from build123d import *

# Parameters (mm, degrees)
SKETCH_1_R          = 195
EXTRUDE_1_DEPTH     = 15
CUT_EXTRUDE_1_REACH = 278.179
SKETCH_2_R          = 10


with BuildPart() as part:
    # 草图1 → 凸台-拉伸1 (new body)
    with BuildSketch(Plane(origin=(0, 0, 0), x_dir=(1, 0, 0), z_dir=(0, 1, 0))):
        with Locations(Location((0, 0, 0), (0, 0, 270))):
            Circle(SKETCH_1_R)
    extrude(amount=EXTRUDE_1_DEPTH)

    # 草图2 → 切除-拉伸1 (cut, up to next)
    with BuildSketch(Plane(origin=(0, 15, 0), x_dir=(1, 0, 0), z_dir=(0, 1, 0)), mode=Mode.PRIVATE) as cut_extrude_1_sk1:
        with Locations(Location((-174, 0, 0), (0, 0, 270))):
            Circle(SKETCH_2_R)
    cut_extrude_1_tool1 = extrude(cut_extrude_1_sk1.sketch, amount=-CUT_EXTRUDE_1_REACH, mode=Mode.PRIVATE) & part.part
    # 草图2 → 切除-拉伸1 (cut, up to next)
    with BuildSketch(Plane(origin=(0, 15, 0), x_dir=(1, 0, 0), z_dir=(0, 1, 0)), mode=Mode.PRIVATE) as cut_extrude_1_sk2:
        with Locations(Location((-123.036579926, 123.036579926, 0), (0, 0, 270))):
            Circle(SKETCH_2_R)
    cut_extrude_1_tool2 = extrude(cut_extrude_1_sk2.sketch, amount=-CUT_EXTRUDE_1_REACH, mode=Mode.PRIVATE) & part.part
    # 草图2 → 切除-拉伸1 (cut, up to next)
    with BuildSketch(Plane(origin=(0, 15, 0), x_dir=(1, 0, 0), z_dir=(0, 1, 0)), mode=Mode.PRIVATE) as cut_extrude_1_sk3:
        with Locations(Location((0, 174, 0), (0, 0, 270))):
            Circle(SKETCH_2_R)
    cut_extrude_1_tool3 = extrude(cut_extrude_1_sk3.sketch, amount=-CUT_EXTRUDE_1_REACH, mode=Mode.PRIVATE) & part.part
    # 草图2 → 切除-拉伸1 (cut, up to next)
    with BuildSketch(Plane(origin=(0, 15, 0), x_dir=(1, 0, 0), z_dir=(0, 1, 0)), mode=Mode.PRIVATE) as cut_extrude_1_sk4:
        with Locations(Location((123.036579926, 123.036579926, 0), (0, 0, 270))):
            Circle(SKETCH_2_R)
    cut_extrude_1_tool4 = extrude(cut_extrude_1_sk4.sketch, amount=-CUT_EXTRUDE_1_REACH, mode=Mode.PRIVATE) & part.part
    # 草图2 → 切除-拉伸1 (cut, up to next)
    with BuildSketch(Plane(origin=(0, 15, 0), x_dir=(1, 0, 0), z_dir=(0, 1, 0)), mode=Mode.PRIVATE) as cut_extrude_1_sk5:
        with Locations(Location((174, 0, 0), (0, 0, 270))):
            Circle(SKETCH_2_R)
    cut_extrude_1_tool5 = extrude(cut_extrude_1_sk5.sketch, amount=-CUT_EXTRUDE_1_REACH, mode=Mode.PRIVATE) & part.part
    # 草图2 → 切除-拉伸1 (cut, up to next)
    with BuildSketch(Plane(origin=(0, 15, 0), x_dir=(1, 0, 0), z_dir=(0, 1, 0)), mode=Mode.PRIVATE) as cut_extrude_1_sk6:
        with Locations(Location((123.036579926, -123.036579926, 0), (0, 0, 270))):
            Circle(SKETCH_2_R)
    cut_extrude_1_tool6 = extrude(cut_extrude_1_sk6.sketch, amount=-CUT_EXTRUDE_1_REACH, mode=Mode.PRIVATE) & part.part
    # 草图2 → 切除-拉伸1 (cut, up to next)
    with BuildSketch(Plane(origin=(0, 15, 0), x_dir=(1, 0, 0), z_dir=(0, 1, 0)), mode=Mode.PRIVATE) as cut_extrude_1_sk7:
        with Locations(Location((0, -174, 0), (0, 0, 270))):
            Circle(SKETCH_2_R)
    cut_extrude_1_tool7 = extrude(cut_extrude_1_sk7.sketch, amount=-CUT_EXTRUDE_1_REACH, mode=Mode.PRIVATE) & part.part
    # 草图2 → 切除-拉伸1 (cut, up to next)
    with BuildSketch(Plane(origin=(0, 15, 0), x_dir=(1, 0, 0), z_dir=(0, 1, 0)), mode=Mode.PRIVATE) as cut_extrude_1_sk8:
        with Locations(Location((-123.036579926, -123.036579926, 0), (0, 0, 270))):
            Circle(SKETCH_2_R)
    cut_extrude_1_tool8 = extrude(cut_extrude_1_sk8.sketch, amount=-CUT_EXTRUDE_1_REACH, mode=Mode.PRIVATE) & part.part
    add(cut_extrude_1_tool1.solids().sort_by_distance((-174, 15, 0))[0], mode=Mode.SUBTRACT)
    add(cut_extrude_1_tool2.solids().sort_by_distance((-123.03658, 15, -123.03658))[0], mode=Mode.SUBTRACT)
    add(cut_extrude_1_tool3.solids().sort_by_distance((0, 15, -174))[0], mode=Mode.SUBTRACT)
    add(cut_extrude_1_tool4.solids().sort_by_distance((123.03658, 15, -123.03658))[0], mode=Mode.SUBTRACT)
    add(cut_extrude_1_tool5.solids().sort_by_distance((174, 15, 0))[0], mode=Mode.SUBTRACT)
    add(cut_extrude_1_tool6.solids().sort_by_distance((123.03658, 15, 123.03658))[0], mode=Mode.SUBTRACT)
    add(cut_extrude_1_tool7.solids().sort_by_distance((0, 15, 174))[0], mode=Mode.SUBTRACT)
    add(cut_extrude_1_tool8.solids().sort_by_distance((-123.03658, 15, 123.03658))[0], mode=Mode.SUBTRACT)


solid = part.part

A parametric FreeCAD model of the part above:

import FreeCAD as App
import Part
import Sketcher
from FreeCAD import Vector

doc = App.newDocument("Part")
body = doc.addObject("PartDesign::Body", "Body")

sketch1 = doc.addObject("Sketcher::SketchObject", "Sketch")
body.addObject(sketch1)
sketch1.AttachmentSupport = (doc.XZ_Plane, [""])
sketch1.MapMode = "FlatFace"
sketch1.addGeometry(Part.Circle(Vector(0, 0, 0), Vector(0, 0, 1), 195), False)
sketch1.addConstraint(Sketcher.Constraint("Coincident", 0, 3, -1, 1))
sketch1.addConstraint(Sketcher.Constraint("Diameter", 0, 390.0))
pad1 = doc.addObject("PartDesign::Pad", "Pad")
body.addObject(pad1)
pad1.Profile = sketch1
pad1.Length = 15
pad1.Reversed = True

sketch2 = doc.addObject("Sketcher::SketchObject", "Sketch001")
body.addObject(sketch2)
sketch2.AttachmentSupport = (doc.XZ_Plane, [""])
sketch2.MapMode = "FlatFace"
sketch2.AttachmentOffset = App.Placement(Vector(0, 0, -15), App.Rotation())
sketch2.addGeometry(Part.Circle(Vector(-174, 0, 0), Vector(0, 0, 1), 10), False)
sketch2.addConstraint(Sketcher.Constraint("PointOnObject", 0, 3, -1))
sketch2.addConstraint(Sketcher.Constraint("Diameter", 0, 20.0))
sketch2.addConstraint(Sketcher.Constraint("DistanceX", 0, 3, -1, 1, 174.0))
pocket1 = doc.addObject("PartDesign::Pocket", "Pocket")
body.addObject(pocket1)
pocket1.Profile = sketch2
pocket1.Type = "UpToFirst"
pocket1.Reversed = True

sketch3 = doc.addObject("Sketcher::SketchObject", "Sketch002")
body.addObject(sketch3)
sketch3.AttachmentSupport = (doc.XZ_Plane, [""])
sketch3.MapMode = "FlatFace"
sketch3.AttachmentOffset = App.Placement(Vector(0, 0, -15), App.Rotation())
sketch3.addGeometry(Part.Circle(Vector(-123.03658, -123.03658, 0), Vector(0, 0, 1), 10), False)
sketch3.addConstraint(Sketcher.Constraint("Diameter", 0, 20.0))
sketch3.addConstraint(Sketcher.Constraint("DistanceX", 0, 3, -1, 1, 123.03658))
sketch3.addConstraint(Sketcher.Constraint("DistanceY", 0, 3, -1, 1, 123.03658))
pocket2 = doc.addObject("PartDesign::Pocket", "Pocket001")
body.addObject(pocket2)
pocket2.Profile = sketch3
pocket2.Type = "UpToFirst"
pocket2.Reversed = True

sketch4 = doc.addObject("Sketcher::SketchObject", "Sketch003")
body.addObject(sketch4)
sketch4.AttachmentSupport = (doc.XZ_Plane, [""])
sketch4.MapMode = "FlatFace"
sketch4.AttachmentOffset = App.Placement(Vector(0, 0, -15), App.Rotation())
sketch4.addGeometry(Part.Circle(Vector(0, -174, 0), Vector(0, 0, 1), 10), False)
sketch4.addConstraint(Sketcher.Constraint("PointOnObject", 0, 3, -2))
sketch4.addConstraint(Sketcher.Constraint("Diameter", 0, 20.0))
sketch4.addConstraint(Sketcher.Constraint("DistanceY", 0, 3, -1, 1, 174.0))
pocket3 = doc.addObject("PartDesign::Pocket", "Pocket002")
body.addObject(pocket3)
pocket3.Profile = sketch4
pocket3.Type = "UpToFirst"
pocket3.Reversed = True

sketch5 = doc.addObject("Sketcher::SketchObject", "Sketch004")
body.addObject(sketch5)
sketch5.AttachmentSupport = (doc.XZ_Plane, [""])
sketch5.MapMode = "FlatFace"
sketch5.AttachmentOffset = App.Placement(Vector(0, 0, -15), App.Rotation())
sketch5.addGeometry(Part.Circle(Vector(123.03658, -123.03658, 0), Vector(0, 0, 1), 10), False)
sketch5.addConstraint(Sketcher.Constraint("Diameter", 0, 20.0))
sketch5.addConstraint(Sketcher.Constraint("DistanceX", -1, 1, 0, 3, 123.03658))
sketch5.addConstraint(Sketcher.Constraint("DistanceY", 0, 3, -1, 1, 123.03658))
pocket4 = doc.addObject("PartDesign::Pocket", "Pocket003")
body.addObject(pocket4)
pocket4.Profile = sketch5
pocket4.Type = "UpToFirst"
pocket4.Reversed = True

sketch6 = doc.addObject("Sketcher::SketchObject", "Sketch005")
body.addObject(sketch6)
sketch6.AttachmentSupport = (doc.XZ_Plane, [""])
sketch6.MapMode = "FlatFace"
sketch6.AttachmentOffset = App.Placement(Vector(0, 0, -15), App.Rotation())
sketch6.addGeometry(Part.Circle(Vector(174, 0, 0), Vector(0, 0, 1), 10), False)
sketch6.addConstraint(Sketcher.Constraint("PointOnObject", 0, 3, -1))
sketch6.addConstraint(Sketcher.Constraint("Diameter", 0, 20.0))
sketch6.addConstraint(Sketcher.Constraint("DistanceX", -1, 1, 0, 3, 174.0))
pocket5 = doc.addObject("PartDesign::Pocket", "Pocket004")
body.addObject(pocket5)
pocket5.Profile = sketch6
pocket5.Type = "UpToFirst"
pocket5.Reversed = True

sketch7 = doc.addObject("Sketcher::SketchObject", "Sketch006")
body.addObject(sketch7)
sketch7.AttachmentSupport = (doc.XZ_Plane, [""])
sketch7.MapMode = "FlatFace"
sketch7.AttachmentOffset = App.Placement(Vector(0, 0, -15), App.Rotation())
sketch7.addGeometry(Part.Circle(Vector(123.03658, 123.03658, 0), Vector(0, 0, 1), 10), False)
sketch7.addConstraint(Sketcher.Constraint("Diameter", 0, 20.0))
sketch7.addConstraint(Sketcher.Constraint("DistanceX", -1, 1, 0, 3, 123.03658))
sketch7.addConstraint(Sketcher.Constraint("DistanceY", -1, 1, 0, 3, 123.03658))
pocket6 = doc.addObject("PartDesign::Pocket", "Pocket005")
body.addObject(pocket6)
pocket6.Profile = sketch7
pocket6.Type = "UpToFirst"
pocket6.Reversed = True

sketch8 = doc.addObject("Sketcher::SketchObject", "Sketch007")
body.addObject(sketch8)
sketch8.AttachmentSupport = (doc.XZ_Plane, [""])
sketch8.MapMode = "FlatFace"
sketch8.AttachmentOffset = App.Placement(Vector(0, 0, -15), App.Rotation())
sketch8.addGeometry(Part.Circle(Vector(0, 174, 0), Vector(0, 0, 1), 10), False)
sketch8.addConstraint(Sketcher.Constraint("PointOnObject", 0, 3, -2))
sketch8.addConstraint(Sketcher.Constraint("Diameter", 0, 20.0))
sketch8.addConstraint(Sketcher.Constraint("DistanceY", -1, 1, 0, 3, 174.0))
pocket7 = doc.addObject("PartDesign::Pocket", "Pocket006")
body.addObject(pocket7)
pocket7.Profile = sketch8
pocket7.Type = "UpToFirst"
pocket7.Reversed = True

sketch9 = doc.addObject("Sketcher::SketchObject", "Sketch008")
body.addObject(sketch9)
sketch9.AttachmentSupport = (doc.XZ_Plane, [""])
sketch9.MapMode = "FlatFace"
sketch9.AttachmentOffset = App.Placement(Vector(0, 0, -15), App.Rotation())
sketch9.addGeometry(Part.Circle(Vector(-123.03658, 123.03658, 0), Vector(0, 0, 1), 10), False)
sketch9.addConstraint(Sketcher.Constraint("Diameter", 0, 20.0))
sketch9.addConstraint(Sketcher.Constraint("DistanceX", 0, 3, -1, 1, 123.03658))
sketch9.addConstraint(Sketcher.Constraint("DistanceY", -1, 1, 0, 3, 123.03658))
pocket8 = doc.addObject("PartDesign::Pocket", "Pocket007")
body.addObject(pocket8)
pocket8.Profile = sketch9
pocket8.Type = "UpToFirst"
pocket8.Reversed = True

doc.recompute()
